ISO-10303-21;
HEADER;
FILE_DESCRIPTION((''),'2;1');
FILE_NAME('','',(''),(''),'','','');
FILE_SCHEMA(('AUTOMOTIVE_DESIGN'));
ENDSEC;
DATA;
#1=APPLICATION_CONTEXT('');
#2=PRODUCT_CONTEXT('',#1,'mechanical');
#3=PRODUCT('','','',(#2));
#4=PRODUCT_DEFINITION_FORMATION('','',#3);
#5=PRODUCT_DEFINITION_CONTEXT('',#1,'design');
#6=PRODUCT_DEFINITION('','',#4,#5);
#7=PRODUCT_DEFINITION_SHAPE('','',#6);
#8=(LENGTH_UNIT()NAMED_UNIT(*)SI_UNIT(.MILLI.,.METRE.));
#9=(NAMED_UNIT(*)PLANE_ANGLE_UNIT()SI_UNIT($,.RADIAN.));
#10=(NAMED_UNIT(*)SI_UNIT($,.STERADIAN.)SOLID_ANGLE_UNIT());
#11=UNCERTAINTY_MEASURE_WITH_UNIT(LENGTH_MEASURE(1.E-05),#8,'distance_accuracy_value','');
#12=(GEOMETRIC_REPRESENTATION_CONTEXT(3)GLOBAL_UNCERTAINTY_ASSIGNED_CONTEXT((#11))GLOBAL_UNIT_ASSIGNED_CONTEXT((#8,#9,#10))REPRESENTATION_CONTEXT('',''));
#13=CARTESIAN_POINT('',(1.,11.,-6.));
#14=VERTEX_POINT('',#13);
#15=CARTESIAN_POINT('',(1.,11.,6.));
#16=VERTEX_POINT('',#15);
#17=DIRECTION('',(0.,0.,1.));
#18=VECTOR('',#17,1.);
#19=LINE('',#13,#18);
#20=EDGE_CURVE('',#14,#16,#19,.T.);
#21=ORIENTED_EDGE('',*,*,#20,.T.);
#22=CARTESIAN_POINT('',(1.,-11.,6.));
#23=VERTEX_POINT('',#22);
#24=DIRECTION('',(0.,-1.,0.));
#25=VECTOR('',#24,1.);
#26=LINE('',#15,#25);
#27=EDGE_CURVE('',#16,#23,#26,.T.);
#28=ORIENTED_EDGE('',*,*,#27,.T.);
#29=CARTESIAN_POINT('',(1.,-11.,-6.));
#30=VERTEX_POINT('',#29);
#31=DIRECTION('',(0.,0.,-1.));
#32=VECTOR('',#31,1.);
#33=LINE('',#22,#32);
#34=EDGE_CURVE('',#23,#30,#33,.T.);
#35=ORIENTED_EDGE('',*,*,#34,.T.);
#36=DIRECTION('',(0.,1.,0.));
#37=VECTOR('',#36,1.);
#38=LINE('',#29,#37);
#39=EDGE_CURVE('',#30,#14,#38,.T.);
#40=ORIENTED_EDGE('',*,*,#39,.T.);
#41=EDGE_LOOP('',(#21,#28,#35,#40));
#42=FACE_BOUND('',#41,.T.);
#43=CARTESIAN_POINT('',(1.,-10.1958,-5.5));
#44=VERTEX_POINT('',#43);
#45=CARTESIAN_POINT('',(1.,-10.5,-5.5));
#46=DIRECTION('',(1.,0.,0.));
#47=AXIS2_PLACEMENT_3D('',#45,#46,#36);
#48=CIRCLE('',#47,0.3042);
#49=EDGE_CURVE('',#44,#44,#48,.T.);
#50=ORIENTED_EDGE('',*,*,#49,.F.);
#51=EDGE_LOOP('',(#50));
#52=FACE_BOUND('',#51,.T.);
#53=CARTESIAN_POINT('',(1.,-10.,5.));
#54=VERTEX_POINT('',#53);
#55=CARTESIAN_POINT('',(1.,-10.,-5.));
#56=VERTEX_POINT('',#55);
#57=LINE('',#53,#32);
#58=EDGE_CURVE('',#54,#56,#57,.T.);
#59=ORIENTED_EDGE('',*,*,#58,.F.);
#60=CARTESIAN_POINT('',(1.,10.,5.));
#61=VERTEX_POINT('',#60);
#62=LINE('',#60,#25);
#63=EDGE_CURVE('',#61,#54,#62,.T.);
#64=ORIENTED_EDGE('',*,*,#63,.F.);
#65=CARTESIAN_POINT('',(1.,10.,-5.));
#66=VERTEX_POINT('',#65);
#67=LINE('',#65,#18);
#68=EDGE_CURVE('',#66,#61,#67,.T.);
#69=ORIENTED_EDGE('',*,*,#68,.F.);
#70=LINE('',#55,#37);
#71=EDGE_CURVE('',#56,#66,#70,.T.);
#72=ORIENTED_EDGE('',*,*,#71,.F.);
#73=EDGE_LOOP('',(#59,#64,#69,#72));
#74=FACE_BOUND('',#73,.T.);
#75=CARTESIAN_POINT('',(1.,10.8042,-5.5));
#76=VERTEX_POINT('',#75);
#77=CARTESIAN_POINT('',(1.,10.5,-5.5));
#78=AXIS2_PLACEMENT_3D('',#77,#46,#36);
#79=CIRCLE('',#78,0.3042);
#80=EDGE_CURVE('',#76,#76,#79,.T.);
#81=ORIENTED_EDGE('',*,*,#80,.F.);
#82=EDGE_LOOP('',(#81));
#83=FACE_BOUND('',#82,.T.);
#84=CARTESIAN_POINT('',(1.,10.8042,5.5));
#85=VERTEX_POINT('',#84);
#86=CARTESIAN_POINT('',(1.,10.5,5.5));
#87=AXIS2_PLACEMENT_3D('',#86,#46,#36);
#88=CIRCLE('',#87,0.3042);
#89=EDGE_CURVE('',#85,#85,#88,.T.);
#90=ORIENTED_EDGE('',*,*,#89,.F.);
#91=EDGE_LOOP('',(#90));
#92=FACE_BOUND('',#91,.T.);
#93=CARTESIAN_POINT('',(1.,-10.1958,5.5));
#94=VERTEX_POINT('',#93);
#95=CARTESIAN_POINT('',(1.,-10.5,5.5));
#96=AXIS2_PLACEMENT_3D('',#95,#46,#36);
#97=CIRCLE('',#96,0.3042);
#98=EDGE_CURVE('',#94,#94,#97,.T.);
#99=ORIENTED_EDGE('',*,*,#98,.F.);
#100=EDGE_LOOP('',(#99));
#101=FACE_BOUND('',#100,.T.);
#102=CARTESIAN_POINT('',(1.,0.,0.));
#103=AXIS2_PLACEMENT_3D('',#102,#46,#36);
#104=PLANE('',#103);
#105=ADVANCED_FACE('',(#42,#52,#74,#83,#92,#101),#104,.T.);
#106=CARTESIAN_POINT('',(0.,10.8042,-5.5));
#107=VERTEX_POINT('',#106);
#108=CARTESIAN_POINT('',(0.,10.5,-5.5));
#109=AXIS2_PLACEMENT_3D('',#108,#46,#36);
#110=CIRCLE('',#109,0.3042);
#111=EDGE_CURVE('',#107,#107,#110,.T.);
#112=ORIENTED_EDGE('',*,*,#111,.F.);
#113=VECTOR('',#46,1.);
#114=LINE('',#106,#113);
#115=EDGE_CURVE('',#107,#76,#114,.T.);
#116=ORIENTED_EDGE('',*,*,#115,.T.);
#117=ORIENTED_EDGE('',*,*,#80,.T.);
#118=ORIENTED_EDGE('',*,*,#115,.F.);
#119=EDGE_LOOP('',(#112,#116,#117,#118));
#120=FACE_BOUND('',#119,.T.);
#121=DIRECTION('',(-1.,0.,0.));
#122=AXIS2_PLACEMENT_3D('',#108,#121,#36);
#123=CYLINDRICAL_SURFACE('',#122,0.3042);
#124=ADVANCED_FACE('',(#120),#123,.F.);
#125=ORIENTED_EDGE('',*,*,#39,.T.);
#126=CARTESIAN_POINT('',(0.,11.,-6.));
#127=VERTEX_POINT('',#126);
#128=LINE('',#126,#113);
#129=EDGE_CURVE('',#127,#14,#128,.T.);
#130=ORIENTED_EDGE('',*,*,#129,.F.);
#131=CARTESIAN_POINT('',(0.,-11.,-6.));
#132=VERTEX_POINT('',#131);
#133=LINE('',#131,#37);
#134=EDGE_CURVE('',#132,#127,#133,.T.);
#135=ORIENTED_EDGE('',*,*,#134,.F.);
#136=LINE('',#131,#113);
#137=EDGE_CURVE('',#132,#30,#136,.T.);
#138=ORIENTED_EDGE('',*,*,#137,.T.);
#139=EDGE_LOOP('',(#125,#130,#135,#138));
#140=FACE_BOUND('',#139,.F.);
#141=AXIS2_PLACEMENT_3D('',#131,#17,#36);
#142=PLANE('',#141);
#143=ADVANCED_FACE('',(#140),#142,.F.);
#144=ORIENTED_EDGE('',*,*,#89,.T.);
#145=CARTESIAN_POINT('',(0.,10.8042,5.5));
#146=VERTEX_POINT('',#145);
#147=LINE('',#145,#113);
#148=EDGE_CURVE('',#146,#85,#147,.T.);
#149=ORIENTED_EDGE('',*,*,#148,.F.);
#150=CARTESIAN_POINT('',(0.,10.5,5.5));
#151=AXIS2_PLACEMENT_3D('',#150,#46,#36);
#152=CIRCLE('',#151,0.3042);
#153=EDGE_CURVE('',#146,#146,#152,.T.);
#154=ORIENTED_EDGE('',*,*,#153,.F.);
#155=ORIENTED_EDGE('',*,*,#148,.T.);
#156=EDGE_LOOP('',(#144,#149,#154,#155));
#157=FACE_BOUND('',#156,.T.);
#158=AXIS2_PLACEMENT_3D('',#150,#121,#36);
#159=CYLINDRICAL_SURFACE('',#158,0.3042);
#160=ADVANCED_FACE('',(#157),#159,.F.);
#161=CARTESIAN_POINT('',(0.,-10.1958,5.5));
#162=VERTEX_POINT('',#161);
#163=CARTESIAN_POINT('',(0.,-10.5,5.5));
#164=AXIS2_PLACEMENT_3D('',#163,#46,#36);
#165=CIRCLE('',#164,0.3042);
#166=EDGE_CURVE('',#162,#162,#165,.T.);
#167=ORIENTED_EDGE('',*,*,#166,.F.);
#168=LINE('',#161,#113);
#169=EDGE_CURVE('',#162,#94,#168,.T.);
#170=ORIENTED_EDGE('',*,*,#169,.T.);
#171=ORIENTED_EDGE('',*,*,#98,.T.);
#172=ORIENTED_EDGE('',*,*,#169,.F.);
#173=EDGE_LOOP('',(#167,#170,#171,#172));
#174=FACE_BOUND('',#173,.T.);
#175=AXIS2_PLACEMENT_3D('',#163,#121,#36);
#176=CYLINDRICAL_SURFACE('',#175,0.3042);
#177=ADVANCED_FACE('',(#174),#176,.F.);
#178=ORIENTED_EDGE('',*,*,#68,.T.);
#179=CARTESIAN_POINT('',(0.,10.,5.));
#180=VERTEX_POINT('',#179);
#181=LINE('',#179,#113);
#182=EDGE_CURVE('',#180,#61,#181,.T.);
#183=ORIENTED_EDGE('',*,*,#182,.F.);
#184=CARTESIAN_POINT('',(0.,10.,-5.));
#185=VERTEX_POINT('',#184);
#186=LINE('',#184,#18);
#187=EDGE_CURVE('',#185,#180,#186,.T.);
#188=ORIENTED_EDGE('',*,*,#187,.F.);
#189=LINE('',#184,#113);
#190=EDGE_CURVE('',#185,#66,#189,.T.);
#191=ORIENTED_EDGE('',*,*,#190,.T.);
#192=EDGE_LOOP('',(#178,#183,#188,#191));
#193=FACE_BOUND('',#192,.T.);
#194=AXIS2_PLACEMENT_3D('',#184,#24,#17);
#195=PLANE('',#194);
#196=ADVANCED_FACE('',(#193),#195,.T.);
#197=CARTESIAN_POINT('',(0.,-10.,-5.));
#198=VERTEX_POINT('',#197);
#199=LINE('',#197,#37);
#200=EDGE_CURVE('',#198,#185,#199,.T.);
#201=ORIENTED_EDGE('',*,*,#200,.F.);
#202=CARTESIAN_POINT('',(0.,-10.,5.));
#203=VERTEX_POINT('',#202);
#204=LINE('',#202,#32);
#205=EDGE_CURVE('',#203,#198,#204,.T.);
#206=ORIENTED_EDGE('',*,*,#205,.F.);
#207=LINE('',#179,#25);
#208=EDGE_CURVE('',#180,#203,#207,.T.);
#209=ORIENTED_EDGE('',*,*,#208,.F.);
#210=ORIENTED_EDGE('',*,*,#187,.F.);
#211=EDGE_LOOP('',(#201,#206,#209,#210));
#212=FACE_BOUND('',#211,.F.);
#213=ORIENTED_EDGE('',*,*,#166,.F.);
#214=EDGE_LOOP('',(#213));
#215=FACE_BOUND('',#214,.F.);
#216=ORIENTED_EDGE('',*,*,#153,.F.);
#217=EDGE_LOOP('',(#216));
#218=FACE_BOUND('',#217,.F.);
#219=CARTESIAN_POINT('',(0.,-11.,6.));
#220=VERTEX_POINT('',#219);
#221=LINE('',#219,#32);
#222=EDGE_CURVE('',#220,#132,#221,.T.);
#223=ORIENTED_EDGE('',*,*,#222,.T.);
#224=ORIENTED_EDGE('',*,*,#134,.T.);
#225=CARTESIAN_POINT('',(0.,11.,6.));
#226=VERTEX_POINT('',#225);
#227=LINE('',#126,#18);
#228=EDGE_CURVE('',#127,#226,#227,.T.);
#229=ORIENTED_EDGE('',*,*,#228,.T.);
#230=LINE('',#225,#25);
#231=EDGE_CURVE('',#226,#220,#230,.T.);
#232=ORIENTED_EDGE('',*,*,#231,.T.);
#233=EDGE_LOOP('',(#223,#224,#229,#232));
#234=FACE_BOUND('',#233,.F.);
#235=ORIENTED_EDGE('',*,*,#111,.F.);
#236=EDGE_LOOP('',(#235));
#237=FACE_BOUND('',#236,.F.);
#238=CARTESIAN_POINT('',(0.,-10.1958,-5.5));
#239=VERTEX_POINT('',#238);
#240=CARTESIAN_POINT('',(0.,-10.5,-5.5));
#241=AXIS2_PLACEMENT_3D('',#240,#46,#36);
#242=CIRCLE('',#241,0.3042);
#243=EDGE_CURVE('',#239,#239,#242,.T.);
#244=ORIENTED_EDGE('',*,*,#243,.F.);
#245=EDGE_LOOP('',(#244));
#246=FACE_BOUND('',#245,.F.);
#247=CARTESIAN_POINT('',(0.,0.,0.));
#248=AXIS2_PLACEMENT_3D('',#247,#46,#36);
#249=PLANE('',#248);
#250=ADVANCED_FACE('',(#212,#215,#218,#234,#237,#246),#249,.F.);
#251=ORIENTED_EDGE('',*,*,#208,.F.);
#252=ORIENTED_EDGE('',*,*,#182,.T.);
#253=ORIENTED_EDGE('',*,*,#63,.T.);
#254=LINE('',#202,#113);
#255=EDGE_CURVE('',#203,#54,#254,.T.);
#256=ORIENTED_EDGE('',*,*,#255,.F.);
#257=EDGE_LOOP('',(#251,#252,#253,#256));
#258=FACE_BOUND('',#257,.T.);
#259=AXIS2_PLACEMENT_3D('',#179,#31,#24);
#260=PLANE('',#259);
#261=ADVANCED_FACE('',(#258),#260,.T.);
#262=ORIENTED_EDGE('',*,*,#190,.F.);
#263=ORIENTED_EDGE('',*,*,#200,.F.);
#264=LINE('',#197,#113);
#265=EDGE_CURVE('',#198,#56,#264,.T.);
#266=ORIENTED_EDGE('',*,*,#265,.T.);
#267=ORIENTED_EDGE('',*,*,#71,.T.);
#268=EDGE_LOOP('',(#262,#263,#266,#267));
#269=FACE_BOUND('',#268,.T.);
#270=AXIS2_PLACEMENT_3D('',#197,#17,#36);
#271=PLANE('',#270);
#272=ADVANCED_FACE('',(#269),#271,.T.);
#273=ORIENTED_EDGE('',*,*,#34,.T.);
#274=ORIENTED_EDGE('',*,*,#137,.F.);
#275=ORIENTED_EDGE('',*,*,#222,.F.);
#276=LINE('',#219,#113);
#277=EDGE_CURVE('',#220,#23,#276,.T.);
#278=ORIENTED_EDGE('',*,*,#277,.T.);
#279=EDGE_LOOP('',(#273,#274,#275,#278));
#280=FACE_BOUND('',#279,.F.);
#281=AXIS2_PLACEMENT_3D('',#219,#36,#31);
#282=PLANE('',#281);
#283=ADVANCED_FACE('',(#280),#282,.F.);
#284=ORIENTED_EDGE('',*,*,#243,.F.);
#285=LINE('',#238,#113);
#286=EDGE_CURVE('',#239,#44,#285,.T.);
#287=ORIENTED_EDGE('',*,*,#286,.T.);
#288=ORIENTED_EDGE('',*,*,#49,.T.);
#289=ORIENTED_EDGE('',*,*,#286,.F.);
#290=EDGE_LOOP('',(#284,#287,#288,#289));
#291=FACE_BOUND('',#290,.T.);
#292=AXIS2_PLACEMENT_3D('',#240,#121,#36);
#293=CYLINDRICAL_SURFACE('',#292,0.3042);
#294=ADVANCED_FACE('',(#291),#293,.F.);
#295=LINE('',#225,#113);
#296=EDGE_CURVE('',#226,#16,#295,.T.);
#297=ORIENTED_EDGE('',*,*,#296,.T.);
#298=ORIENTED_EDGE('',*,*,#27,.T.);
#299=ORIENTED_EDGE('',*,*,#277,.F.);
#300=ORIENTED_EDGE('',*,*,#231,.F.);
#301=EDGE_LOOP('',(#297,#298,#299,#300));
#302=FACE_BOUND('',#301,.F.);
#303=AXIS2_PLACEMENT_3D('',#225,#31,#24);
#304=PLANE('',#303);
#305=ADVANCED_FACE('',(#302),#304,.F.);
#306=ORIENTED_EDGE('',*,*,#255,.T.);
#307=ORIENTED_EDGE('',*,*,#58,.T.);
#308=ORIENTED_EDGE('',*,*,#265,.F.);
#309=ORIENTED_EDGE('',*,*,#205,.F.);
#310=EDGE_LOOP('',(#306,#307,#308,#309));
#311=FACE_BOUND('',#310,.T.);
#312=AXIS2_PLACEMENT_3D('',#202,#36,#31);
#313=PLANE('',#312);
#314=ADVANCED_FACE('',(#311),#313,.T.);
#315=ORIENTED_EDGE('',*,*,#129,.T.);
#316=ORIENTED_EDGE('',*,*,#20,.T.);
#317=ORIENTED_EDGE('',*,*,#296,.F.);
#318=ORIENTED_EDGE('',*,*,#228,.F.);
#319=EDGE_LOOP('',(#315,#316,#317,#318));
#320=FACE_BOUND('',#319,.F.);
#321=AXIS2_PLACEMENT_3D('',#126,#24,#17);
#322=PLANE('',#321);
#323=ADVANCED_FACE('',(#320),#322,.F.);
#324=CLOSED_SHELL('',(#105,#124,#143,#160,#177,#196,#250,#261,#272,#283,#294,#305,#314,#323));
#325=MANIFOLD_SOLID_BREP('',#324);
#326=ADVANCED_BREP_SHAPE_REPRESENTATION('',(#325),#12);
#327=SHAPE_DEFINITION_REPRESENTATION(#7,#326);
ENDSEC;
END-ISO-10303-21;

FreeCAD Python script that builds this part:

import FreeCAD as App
import Part
import Sketcher

V = App.Vector


def add_polygon(sketch, points):
    """Adds a closed chain of lines whose ends are joined by coincident constraints."""
    first, n = sketch.GeometryCount, len(points)
    for a, b in zip(points, points[1:] + points[:1]):
        sketch.addGeometry(Part.LineSegment(App.Vector(*a, 0), App.Vector(*b, 0)), False)
    for i in range(n):
        sketch.addConstraint(Sketcher.Constraint("Coincident", first + i, 2, first + (i + 1) % n, 1))

doc = App.newDocument("Part")
params = doc.addObject("Spreadsheet::Sheet", "Params")
for row, (alias, value) in enumerate([
    ("sketch1_width", "22 mm"),
    ("sketch1_width2", "20 mm"),
    ("sketch1_height", "12 mm"),
    ("sketch1_height2", "10 mm"),
    ("pad1_length", "1 mm"),
], start=1):
    params.set(f"A{row}", alias)
    params.set(f"B{row}", "=" + value)
    params.setAlias(f"B{row}", alias)

body = doc.addObject("PartDesign::Body", "Body")

# Sketch on YZ plane
sketch1 = body.newObject("Sketcher::SketchObject", "Sketch")
sketch1.AttachmentSupport = (doc.getObject("YZ_Plane"), [""])
sketch1.MapMode = "FlatFace"
add_polygon(sketch1, [(11, -6), (11, 6), (-11, 6), (-11, -6)])  # lines 0-3
sketch1.addGeometry(Part.Circle(V(-10.5, -5.5, 0), V(0, 0, 1), 0.3), False)  # 4
sketch1.addGeometry(Part.Circle(V(10.5, -5.5, 0), V(0, 0, 1), 0.3), False)  # 5
sketch1.addGeometry(Part.Circle(V(-10.5, 5.5, 0), V(0, 0, 1), 0.3), False)  # 6
add_polygon(sketch1, [(-10, 5), (10, 5), (10, -5), (-10, -5)])  # lines 7-10
sketch1.addGeometry(Part.Circle(V(10.5, 5.5, 0), V(0, 0, 1), 0.3), False)  # 11
sketch1.addConstraint([
    Sketcher.Constraint("Vertical", 0),
    Sketcher.Constraint("Horizontal", 1),
    Sketcher.Constraint("Vertical", 2),
    Sketcher.Constraint("Horizontal", 3),
    Sketcher.Constraint("Horizontal", 7),
    Sketcher.Constraint("Vertical", 8),
    Sketcher.Constraint("Horizontal", 9),
    Sketcher.Constraint("Vertical", 10),
    Sketcher.Constraint("Equal", 4, 5),
    Sketcher.Constraint("Equal", 5, 6),
    Sketcher.Constraint("Equal", 6, 11),
    Sketcher.Constraint("Symmetric", 5, 3, 6, 3, -1, 1),
    Sketcher.Constraint("Symmetric", 4, 3, 11, 3, -1, 1),
    Sketcher.Constraint("Symmetric", 0, 2, 2, 2, -1, 1),
    Sketcher.Constraint("Symmetric", 7, 2, 9, 2, -1, 1),
    Sketcher.Constraint("Symmetric", 4, 3, 5, 3, -2),
    Sketcher.Constraint("DistanceX", 1, 2, 1, 1, 22.0),
    Sketcher.Constraint("DistanceX", 7, 1, 7, 2, 20.0),
    Sketcher.Constraint("DistanceY", 0, 1, 0, 2, 12.0),
    Sketcher.Constraint("DistanceY", 8, 2, 8, 1, 10.0),
    Sketcher.Constraint("Diameter", 4, 0.6084),
    Sketcher.Constraint("DistanceX", 4, 3, 5, 3, 21.0),
    Sketcher.Constraint("DistanceY", 4, 3, 6, 3, 11.0),
])
sketch1.setExpression("Constraints[24]", "Params.sketch1_width")
sketch1.setExpression("Constraints[25]", "Params.sketch1_width2")
sketch1.setExpression("Constraints[26]", "Params.sketch1_height")
sketch1.setExpression("Constraints[27]", "Params.sketch1_height2")
pad1 = body.newObject("PartDesign::Pad", "Pad")
pad1.Profile = sketch1
pad1.setExpression("Length", "Params.pad1_length")

doc.recompute()
